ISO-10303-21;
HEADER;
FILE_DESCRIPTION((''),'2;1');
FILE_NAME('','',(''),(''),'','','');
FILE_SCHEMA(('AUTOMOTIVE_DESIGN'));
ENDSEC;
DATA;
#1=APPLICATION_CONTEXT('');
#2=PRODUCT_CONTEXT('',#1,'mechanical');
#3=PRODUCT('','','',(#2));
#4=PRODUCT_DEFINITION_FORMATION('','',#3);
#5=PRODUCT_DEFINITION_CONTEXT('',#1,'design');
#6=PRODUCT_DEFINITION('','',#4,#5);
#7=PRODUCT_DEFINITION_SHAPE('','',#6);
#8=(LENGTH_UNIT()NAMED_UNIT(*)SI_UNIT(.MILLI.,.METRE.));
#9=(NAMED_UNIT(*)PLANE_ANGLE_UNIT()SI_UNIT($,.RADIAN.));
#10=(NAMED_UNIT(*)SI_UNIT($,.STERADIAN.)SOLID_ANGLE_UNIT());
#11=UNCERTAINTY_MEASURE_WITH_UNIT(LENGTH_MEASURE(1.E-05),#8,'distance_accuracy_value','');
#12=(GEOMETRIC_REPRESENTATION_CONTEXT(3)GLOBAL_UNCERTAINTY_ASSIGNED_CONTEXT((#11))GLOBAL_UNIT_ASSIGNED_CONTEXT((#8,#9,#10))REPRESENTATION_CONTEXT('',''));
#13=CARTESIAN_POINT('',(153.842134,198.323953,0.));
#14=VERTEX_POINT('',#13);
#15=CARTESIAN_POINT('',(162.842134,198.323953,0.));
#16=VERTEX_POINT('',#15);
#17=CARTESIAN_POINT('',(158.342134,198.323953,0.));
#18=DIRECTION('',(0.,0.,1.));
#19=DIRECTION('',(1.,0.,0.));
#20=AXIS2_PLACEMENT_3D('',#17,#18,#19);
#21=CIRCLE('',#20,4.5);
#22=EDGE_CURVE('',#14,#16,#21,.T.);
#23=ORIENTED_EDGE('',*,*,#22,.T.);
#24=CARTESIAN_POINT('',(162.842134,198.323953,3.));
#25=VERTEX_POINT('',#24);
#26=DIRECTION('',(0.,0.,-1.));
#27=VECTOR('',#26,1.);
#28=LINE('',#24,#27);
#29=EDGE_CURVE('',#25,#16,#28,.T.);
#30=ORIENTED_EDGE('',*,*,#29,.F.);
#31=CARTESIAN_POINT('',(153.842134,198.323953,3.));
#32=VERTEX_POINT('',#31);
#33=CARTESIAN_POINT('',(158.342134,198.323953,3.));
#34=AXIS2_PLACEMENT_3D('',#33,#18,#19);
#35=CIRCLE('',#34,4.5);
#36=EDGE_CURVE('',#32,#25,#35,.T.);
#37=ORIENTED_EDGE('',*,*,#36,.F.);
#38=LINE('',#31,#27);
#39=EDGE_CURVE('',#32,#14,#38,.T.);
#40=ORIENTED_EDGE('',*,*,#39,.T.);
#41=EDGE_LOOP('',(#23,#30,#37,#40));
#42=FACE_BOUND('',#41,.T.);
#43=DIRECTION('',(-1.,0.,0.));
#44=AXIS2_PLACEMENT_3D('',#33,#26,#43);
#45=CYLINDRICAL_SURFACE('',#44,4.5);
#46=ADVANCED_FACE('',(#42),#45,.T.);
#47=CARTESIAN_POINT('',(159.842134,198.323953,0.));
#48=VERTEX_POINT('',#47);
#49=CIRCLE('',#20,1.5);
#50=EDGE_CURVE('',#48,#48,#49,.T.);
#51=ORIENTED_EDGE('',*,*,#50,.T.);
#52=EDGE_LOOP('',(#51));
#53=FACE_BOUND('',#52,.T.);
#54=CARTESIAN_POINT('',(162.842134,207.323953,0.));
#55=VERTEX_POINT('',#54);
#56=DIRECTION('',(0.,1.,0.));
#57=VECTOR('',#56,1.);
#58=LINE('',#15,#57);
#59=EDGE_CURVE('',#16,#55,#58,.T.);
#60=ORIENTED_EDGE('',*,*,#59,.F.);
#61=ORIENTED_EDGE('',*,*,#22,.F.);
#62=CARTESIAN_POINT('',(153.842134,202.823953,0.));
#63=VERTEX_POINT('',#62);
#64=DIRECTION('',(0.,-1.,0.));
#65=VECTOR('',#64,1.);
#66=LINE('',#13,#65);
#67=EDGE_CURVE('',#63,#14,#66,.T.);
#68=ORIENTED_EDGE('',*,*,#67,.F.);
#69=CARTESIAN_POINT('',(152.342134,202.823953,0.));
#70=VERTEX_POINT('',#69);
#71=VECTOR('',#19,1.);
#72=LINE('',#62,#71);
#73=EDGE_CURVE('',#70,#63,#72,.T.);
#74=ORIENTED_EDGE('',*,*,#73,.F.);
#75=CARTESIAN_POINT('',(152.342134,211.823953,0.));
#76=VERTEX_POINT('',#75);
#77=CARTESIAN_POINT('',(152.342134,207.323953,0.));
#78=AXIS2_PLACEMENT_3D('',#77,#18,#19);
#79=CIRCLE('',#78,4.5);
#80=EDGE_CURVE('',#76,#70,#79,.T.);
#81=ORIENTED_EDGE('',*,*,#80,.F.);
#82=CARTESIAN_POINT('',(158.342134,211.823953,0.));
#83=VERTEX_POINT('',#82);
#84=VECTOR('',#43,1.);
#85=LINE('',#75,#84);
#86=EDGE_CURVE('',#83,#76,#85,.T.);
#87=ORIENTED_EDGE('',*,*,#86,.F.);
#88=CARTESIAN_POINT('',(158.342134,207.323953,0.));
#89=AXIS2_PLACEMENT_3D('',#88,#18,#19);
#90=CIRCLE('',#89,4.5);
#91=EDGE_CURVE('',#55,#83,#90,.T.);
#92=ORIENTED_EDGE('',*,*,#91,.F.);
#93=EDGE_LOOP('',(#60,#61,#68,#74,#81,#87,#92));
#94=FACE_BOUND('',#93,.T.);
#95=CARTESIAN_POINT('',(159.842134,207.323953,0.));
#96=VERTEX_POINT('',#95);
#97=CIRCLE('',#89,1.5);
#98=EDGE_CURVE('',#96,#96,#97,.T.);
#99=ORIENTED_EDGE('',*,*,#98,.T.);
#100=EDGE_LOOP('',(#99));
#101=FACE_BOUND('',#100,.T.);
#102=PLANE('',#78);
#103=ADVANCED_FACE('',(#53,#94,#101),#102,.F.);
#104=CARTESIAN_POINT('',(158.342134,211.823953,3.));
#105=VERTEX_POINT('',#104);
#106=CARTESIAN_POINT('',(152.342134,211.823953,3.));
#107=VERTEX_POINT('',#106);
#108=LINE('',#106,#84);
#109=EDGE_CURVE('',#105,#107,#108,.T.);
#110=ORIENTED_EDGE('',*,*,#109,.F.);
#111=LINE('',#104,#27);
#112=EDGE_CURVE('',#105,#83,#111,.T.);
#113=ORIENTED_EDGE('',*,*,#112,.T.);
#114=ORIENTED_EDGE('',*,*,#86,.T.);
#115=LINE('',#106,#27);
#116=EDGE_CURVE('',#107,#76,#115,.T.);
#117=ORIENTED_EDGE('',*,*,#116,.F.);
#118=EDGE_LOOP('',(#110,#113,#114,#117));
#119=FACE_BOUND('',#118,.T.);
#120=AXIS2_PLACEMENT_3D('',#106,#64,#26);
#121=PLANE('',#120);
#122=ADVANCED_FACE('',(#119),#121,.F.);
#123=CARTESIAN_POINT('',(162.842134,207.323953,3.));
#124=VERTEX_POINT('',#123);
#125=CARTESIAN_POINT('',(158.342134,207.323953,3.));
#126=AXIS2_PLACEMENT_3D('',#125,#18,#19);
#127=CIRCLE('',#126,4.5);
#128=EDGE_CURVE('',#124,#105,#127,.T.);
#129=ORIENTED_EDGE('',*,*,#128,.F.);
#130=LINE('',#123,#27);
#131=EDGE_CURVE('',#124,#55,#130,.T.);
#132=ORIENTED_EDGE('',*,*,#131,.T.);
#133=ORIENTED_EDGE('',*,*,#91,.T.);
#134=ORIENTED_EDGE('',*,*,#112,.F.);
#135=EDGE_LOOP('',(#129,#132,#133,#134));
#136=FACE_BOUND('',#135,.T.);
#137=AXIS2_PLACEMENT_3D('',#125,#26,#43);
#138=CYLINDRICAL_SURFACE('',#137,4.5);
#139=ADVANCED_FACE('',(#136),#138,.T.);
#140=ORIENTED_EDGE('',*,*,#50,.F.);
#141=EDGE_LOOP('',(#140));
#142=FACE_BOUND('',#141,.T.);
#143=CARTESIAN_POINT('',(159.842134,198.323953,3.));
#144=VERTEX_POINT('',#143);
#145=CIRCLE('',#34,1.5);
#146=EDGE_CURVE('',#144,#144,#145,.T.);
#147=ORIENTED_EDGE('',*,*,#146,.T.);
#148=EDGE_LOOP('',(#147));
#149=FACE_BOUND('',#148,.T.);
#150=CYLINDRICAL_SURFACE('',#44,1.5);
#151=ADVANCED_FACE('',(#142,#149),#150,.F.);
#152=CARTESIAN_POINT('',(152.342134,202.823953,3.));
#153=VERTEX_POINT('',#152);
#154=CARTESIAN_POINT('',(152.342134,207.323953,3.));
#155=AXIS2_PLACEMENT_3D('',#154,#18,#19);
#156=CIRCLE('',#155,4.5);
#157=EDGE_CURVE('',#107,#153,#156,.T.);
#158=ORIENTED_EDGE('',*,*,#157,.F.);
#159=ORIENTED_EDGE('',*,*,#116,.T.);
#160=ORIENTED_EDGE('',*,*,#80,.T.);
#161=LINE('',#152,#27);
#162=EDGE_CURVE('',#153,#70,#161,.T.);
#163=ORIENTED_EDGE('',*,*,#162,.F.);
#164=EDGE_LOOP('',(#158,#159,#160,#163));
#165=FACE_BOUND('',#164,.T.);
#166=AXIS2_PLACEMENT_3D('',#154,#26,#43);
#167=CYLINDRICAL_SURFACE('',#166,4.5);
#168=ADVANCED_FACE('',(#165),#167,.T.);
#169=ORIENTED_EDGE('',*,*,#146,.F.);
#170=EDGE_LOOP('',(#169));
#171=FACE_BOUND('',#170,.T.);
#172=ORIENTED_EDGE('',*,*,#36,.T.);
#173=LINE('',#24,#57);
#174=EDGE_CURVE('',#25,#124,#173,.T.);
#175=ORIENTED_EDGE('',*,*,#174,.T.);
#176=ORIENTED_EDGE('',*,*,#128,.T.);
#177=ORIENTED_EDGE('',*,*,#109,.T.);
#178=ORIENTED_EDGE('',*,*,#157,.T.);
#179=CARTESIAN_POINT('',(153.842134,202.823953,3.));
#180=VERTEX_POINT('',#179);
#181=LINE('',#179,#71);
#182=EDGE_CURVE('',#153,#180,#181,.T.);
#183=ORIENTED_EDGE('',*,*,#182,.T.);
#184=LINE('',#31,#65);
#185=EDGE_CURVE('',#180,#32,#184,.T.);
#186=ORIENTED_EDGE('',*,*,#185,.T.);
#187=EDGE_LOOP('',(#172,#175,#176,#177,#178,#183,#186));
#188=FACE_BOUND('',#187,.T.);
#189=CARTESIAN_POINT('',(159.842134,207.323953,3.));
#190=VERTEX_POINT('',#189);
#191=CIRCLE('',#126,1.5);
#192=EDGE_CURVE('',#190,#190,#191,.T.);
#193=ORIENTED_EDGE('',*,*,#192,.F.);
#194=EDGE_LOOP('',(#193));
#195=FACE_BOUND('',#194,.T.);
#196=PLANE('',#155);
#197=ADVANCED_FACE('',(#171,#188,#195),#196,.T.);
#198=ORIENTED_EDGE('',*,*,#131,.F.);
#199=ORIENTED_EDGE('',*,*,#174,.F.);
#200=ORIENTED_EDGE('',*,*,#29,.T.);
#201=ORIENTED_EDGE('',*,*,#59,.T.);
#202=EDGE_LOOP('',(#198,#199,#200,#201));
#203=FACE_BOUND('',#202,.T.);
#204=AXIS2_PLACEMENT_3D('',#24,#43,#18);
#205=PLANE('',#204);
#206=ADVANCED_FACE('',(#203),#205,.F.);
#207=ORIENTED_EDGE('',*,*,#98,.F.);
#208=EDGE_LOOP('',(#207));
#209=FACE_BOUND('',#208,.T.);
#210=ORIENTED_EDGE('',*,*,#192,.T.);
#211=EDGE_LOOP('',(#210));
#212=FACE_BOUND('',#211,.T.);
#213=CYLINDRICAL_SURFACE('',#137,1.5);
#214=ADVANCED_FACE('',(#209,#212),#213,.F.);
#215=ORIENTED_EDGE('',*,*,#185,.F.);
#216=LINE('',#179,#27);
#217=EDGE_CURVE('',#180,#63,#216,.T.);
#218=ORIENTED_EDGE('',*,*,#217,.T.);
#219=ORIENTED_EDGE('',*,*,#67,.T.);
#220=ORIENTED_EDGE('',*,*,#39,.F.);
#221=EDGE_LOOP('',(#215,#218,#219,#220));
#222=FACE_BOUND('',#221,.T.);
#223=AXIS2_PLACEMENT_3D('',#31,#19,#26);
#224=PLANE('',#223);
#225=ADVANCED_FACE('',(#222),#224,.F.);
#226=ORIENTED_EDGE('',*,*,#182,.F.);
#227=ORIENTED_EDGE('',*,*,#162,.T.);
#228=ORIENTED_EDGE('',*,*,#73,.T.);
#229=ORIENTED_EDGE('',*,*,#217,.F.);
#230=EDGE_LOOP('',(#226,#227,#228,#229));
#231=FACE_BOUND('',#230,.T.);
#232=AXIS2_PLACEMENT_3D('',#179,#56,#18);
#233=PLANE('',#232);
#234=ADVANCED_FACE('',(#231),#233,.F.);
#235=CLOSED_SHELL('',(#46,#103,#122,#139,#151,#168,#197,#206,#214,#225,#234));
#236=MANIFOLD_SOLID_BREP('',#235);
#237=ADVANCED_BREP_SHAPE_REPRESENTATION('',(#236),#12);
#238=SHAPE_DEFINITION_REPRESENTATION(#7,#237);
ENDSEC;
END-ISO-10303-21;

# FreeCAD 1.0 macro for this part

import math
import FreeCAD as App
import Part
import Sketcher
Q = App.Units.Quantity

doc = App.newDocument("Part")
body = doc.addObject("PartDesign::Body", "Body")

sketch1 = doc.addObject("Sketcher::SketchObject", "Sketch")
body.addObject(sketch1)
sketch1.AttachmentSupport = (doc.XY_Plane, [""])
sketch1.MapMode = "FlatFace"
sketch1.addGeometry([
    Part.LineSegment(App.Vector(158.3, 211.8, 0), App.Vector(152.3, 211.8, 0)),
    Part.ArcOfCircle(Part.Circle(App.Vector(152.3, 207.3, 0), App.Vector(0, 0, 1), 4.5), math.radians(90), math.radians(270)),
    Part.LineSegment(App.Vector(152.3, 202.8, 0), App.Vector(153.8, 202.8, 0)),
    Part.LineSegment(App.Vector(153.8, 202.8, 0), App.Vector(153.8, 198.3, 0)),
    Part.ArcOfCircle(Part.Circle(App.Vector(158.3, 198.3, 0), App.Vector(0, 0, 1), 4.5), math.radians(180), math.radians(360)),
    Part.LineSegment(App.Vector(162.8, 198.3, 0), App.Vector(162.8, 207.3, 0)),
    Part.ArcOfCircle(Part.Circle(App.Vector(158.3, 207.3, 0), App.Vector(0, 0, 1), 4.5), math.radians(0), math.radians(90)),
    Part.Circle(App.Vector(158.3, 198.3, 0), App.Vector(0, 0, 1), 1.5),
    Part.Circle(App.Vector(158.3, 207.3, 0), App.Vector(0, 0, 1), 1.5),
], False)
sketch1.addConstraint([
    Sketcher.Constraint("Tangent", 0, 2, 1, 1),
    Sketcher.Constraint("Tangent", 1, 2, 2, 1),
    Sketcher.Constraint("Coincident", 2, 2, 3, 1),
    Sketcher.Constraint("Tangent", 3, 2, 4, 1),
    Sketcher.Constraint("Tangent", 4, 2, 5, 1),
    Sketcher.Constraint("Tangent", 5, 2, 6, 1),
    Sketcher.Constraint("Tangent", 6, 2, 0, 1),
    Sketcher.Constraint("Horizontal", 0),
    Sketcher.Constraint("Horizontal", 2),
    Sketcher.Constraint("Vertical", 3),
    Sketcher.Constraint("Vertical", 5),
    Sketcher.Constraint("Coincident", 7, 3, 4, 3),
    Sketcher.Constraint("Coincident", 8, 3, 6, 3),
    Sketcher.Constraint("Equal", 1, 4),
    Sketcher.Constraint("Equal", 4, 6),
    Sketcher.Constraint("Equal", 7, 8),
    Sketcher.Constraint("Diameter", 7, Q("3 mm")),
    Sketcher.Constraint("Radius", 1, Q("4.5 mm")),
    Sketcher.Constraint("DistanceX", 0, 2, 0, 1, Q("6 mm")),
    Sketcher.Constraint("DistanceY", 5, 1, 5, 2, Q("9 mm")),
    Sketcher.Constraint("DistanceX", -1, 1, 1, 3, Q("152.342134 mm")),
    Sketcher.Constraint("DistanceY", -1, 1, 1, 3, Q("207.323953 mm")),
])
pad1 = doc.addObject("PartDesign::Pad", "Pad")
body.addObject(pad1)
pad1.Profile = sketch1
pad1.Length = 3

doc.recompute()
